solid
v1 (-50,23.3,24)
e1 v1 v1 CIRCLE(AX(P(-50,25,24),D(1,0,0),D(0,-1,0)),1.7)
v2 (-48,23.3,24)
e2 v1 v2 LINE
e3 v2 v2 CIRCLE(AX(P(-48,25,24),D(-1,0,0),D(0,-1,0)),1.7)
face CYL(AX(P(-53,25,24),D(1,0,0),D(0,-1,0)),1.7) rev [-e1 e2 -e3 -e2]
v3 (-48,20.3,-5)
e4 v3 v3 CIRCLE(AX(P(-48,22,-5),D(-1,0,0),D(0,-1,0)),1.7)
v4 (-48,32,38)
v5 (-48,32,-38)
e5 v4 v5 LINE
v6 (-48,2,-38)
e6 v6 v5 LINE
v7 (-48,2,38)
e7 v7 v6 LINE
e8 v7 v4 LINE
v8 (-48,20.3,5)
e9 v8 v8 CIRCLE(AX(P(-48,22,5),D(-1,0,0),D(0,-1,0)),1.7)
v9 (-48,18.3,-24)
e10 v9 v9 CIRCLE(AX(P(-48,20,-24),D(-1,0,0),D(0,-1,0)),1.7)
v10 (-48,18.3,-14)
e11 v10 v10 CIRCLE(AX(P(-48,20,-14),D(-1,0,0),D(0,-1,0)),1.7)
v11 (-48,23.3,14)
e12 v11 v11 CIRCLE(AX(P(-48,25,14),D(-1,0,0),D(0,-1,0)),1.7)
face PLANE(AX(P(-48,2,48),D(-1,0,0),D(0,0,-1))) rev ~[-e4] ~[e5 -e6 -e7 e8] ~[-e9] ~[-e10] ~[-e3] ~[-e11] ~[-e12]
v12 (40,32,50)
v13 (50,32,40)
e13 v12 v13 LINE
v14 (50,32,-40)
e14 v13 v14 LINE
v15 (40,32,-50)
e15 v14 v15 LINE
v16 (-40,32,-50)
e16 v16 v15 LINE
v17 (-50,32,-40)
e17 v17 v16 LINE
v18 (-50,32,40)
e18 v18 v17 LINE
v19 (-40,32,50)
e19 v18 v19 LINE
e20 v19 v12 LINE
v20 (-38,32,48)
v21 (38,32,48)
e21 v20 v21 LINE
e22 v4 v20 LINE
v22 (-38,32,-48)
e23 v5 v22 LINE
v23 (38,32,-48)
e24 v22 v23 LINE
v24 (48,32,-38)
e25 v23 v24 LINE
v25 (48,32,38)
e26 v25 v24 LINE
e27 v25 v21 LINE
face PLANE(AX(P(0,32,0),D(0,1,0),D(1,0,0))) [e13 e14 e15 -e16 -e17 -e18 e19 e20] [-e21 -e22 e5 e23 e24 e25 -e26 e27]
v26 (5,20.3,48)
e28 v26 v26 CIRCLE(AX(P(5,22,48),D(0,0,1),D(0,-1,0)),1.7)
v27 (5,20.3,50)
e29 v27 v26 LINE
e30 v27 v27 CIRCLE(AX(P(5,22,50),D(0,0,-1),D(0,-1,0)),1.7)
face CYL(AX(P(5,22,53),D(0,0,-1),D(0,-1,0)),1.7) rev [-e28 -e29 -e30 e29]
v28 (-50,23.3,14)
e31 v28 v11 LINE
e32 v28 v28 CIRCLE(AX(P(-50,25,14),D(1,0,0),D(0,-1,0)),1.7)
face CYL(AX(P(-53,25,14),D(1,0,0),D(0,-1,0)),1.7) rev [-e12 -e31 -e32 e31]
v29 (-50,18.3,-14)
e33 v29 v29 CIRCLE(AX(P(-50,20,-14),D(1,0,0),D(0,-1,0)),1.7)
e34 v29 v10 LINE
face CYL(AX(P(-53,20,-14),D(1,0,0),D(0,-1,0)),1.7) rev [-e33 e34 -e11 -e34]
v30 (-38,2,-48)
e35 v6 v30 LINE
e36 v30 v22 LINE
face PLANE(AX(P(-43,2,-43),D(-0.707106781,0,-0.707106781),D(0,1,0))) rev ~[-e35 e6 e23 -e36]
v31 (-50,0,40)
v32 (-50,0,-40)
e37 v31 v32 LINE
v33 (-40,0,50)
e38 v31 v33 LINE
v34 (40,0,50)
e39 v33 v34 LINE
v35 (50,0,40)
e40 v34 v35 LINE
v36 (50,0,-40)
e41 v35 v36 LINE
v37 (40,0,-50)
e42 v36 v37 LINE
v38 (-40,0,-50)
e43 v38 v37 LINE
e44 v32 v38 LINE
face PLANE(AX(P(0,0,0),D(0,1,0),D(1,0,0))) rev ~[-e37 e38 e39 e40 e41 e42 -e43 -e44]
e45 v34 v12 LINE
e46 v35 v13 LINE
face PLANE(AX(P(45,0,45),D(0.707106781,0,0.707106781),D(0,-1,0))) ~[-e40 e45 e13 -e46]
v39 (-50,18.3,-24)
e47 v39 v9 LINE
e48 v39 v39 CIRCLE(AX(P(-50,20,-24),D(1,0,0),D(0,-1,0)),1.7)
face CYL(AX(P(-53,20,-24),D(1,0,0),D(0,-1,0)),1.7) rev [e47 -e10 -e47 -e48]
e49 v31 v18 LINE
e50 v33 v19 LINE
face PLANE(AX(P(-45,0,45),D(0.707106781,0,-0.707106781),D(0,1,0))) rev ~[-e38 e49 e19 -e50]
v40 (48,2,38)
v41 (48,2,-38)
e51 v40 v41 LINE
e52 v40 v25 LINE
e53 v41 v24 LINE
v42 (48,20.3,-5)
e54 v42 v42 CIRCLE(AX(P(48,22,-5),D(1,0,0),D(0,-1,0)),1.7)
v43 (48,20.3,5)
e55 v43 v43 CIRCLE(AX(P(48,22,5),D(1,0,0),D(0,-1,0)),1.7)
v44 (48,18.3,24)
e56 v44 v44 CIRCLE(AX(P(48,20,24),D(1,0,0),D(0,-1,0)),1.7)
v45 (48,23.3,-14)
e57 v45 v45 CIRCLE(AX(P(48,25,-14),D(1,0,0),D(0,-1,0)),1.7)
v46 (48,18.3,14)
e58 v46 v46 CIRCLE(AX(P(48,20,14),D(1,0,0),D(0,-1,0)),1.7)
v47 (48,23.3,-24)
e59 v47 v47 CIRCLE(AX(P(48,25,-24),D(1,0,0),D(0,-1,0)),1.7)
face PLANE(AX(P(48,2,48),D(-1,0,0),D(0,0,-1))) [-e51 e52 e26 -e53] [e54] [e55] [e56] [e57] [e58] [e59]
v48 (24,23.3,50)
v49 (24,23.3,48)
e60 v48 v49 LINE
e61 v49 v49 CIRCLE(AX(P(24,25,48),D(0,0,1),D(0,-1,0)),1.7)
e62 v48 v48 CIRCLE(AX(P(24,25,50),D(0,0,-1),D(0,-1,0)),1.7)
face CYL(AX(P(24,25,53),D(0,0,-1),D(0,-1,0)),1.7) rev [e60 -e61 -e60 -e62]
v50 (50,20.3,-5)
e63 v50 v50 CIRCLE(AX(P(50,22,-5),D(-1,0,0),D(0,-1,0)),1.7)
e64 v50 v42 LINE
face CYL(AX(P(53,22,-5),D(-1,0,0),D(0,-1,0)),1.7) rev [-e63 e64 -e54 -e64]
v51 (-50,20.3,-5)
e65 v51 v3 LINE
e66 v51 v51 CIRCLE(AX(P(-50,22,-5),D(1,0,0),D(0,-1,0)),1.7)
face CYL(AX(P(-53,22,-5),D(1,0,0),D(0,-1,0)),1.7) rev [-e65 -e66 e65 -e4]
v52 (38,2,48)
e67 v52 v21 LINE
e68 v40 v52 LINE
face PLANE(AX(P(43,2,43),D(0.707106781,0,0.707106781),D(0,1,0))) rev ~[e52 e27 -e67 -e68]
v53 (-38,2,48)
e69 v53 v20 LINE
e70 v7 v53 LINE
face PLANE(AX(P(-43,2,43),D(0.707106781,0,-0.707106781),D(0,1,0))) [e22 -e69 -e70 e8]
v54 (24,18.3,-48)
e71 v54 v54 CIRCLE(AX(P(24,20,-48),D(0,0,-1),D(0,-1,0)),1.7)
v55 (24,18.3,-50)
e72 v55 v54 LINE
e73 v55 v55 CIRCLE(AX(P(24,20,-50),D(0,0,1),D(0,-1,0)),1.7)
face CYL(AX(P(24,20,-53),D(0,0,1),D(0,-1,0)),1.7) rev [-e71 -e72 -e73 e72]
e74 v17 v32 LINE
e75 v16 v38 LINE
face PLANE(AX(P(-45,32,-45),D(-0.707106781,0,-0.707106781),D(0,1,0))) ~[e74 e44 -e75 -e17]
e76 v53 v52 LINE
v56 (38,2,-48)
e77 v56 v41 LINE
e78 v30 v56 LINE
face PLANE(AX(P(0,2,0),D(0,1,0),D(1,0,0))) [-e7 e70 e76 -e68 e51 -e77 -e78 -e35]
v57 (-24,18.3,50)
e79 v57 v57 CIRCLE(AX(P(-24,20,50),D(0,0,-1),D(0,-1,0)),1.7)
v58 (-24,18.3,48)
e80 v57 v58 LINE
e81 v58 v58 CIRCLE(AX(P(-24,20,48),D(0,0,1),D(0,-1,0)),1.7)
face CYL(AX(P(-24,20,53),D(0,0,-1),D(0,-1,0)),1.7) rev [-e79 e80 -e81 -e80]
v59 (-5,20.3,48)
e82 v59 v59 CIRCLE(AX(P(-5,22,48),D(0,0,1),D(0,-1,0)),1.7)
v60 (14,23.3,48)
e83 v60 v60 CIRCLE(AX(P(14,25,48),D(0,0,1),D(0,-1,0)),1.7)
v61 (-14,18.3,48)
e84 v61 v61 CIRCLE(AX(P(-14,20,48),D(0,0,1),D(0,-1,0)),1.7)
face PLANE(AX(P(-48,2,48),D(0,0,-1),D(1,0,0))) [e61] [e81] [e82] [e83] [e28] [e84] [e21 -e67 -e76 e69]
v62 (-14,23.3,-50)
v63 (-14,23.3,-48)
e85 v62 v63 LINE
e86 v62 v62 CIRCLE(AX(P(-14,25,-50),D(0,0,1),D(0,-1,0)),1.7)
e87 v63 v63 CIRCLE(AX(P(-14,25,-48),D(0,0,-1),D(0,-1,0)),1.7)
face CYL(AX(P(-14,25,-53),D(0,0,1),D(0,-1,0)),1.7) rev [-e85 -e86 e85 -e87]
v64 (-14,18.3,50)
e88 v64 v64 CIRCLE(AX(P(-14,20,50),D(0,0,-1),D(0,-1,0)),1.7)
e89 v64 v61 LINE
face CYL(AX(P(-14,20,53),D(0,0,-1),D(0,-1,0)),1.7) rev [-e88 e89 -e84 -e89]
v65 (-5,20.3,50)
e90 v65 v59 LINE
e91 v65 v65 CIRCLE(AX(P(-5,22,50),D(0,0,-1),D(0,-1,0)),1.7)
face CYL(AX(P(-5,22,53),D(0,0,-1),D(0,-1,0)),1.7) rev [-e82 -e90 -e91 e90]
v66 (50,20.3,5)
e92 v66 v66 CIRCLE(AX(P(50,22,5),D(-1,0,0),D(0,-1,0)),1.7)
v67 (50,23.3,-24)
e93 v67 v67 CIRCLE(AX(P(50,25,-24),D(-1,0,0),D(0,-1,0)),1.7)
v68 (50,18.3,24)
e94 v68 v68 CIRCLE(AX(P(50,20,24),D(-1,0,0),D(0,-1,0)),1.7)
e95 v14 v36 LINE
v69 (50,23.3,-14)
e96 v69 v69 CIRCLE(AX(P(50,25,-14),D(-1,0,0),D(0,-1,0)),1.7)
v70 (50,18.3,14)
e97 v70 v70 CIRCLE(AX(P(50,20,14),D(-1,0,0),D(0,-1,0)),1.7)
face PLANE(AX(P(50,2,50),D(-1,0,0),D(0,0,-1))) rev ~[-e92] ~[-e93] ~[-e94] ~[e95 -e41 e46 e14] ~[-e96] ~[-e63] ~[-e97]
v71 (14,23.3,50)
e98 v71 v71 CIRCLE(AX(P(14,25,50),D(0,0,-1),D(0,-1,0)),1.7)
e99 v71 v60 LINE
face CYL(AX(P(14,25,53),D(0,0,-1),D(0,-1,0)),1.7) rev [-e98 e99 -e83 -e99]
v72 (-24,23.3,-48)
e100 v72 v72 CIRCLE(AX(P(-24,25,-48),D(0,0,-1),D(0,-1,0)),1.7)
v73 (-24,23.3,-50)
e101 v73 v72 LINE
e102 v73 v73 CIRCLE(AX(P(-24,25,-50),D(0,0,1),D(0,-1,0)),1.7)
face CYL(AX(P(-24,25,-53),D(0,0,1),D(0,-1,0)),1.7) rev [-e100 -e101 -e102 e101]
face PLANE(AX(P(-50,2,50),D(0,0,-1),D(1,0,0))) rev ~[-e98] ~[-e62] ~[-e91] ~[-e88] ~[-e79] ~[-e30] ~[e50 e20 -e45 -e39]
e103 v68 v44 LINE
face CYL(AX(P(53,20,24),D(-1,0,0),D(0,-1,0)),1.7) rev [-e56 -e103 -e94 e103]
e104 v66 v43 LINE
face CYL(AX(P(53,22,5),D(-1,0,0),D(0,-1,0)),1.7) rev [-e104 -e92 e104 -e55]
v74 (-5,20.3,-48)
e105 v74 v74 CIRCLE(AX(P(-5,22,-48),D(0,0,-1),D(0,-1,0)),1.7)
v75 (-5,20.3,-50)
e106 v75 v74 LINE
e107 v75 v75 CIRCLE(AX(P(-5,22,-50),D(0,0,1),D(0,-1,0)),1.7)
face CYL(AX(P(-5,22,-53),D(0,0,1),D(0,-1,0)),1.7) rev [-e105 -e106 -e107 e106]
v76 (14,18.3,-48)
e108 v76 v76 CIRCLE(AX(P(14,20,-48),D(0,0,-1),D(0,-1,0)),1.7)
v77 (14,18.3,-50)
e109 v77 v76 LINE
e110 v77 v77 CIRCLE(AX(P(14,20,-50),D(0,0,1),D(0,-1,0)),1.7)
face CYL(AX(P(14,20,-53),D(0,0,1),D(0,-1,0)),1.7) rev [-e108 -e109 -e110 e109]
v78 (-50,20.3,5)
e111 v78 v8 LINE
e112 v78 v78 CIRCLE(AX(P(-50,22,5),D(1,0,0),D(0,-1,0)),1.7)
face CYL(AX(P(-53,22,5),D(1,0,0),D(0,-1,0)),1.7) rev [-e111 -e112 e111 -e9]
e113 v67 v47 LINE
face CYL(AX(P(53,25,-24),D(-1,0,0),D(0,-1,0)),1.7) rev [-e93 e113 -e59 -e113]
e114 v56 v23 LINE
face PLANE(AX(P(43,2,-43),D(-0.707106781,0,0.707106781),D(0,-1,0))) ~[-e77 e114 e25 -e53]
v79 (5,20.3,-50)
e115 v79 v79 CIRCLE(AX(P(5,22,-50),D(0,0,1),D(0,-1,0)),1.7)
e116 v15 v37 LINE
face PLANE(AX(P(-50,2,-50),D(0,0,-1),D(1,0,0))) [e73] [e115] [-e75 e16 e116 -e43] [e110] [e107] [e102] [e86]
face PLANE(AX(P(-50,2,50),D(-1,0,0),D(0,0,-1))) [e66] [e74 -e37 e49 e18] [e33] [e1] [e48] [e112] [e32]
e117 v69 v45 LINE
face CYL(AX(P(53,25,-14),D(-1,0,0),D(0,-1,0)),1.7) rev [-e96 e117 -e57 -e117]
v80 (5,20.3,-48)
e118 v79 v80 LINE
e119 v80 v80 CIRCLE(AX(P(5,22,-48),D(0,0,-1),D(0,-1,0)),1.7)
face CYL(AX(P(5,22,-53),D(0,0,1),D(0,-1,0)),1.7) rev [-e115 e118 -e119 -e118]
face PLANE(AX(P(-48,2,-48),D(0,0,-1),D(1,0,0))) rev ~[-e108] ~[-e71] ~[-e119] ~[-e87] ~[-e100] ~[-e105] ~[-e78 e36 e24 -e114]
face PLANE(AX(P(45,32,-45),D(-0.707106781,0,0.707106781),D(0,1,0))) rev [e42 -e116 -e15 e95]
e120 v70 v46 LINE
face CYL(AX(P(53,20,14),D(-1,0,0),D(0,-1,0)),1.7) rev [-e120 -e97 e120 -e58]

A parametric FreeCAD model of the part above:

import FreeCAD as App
import Part
import Sketcher

V = App.Vector
Q = App.Units.Quantity


def edges_at(feature, points):
    """Names of the edges that pass closest to the given points."""
    edges = feature.Shape.Edges
    near = lambda p: min(range(len(edges)), key=lambda i: edges[i].distToShape(Part.Vertex(*p))[0])
    return sorted({f"Edge{near(p) + 1}" for p in points})

doc = App.newDocument("Part")
params = doc.addObject("Spreadsheet::Sheet", "Params")
for row, (alias, value) in enumerate([
    ("sketch1_width", "100 mm"),
    ("pad1_length", "2 mm"),
    ("sketch2_width", "100 mm"),
    ("sketch2_width2", "96 mm"),
    ("pad2_length", "30 mm"),
    ("chamfer_size", "10 mm"),
    ("sketch3_height", "5 mm"),
    ("sketch3_width", "1.7 mm"),
    ("groove_angle", "360 deg"),
    ("linearpattern_pitch", "10 mm"),
    ("linearpattern2_pitch", "19.235384 mm"),
    ("linearpattern3_pitch", "29.154759 mm"),
    ("linearpattern4_pitch", "38.327536 mm"),
    ("linearpattern5_pitch", "48.259714 mm"),
    ("sketch4_width", "5 mm"),
    ("sketch4_height", "1.7 mm"),
    ("groove2_angle", "360 deg"),
    ("sketch5_height", "5 mm"),
    ("sketch5_width", "1.7 mm"),
    ("groove3_angle", "360 deg"),
    ("sketch6_width", "5 mm"),
    ("sketch6_height", "1.7 mm"),
    ("groove4_angle", "360 deg"),
    ("sketch7_width", "5 mm"),
    ("sketch7_height", "1.7 mm"),
    ("groove5_angle", "360 deg"),
    ("sketch8_height", "5 mm"),
    ("sketch8_width", "1.7 mm"),
    ("groove6_angle", "360 deg"),
    ("sketch9_width", "5 mm"),
    ("sketch9_height", "1.7 mm"),
    ("groove7_angle", "360 deg"),
    ("sketch10_width", "5 mm"),
    ("sketch10_height", "1.7 mm"),
    ("groove8_angle", "360 deg"),
    ("sketch11_height", "5 mm"),
    ("sketch11_width", "1.7 mm"),
    ("groove9_angle", "360 deg"),
    ("sketch12_width", "5 mm"),
    ("sketch12_height", "1.7 mm"),
    ("groove10_angle", "360 deg"),
    ("sketch13_width", "5 mm"),
    ("sketch13_height", "1.7 mm"),
    ("groove11_angle", "360 deg"),
    ("sketch14_height", "5 mm"),
    ("sketch14_width", "1.7 mm"),
    ("groove12_angle", "360 deg"),
    ("sketch15_width", "5 mm"),
    ("sketch15_height", "1.7 mm"),
    ("groove13_angle", "360 deg"),
    ("sketch16_width", "5 mm"),
    ("sketch16_height", "1.7 mm"),
    ("groove14_angle", "360 deg"),
    ("sketch17_height", "5 mm"),
    ("sketch17_width", "1.7 mm"),
    ("groove15_angle", "360 deg"),
    ("sketch18_width", "5 mm"),
    ("sketch18_height", "1.7 mm"),
    ("groove16_angle", "360 deg"),
], start=1):
    params.set(f"A{row}", alias)
    params.set(f"B{row}", "=" + value)
    params.setAlias(f"B{row}", alias)

body = doc.addObject("PartDesign::Body", "Body")

sketch1 = body.newObject("Sketcher::SketchObject", "Sketch")
sketch1.AttachmentSupport = (doc.getObject("XZ_Plane"), [""])
sketch1.MapMode = "FlatFace"
sketch1.addGeometry(Part.LineSegment(V(-50, -50, 0), V(-50, 50, 0)), False)
sketch1.addGeometry(Part.LineSegment(V(-50, 50, 0), V(50, 50, 0)), False)
sketch1.addGeometry(Part.LineSegment(V(50, 50, 0), V(50, -50, 0)), False)
sketch1.addGeometry(Part.LineSegment(V(50, -50, 0), V(-50, -50, 0)), False)
sketch1.addConstraint(Sketcher.Constraint("Coincident", 0, 2, 1, 1))
sketch1.addConstraint(Sketcher.Constraint("Coincident", 1, 2, 2, 1))
sketch1.addConstraint(Sketcher.Constraint("Coincident", 2, 2, 3, 1))
sketch1.addConstraint(Sketcher.Constraint("Coincident", 3, 2, 0, 1))
sketch1.addConstraint(Sketcher.Constraint("Vertical", 0))
sketch1.addConstraint(Sketcher.Constraint("Horizontal", 1))
sketch1.addConstraint(Sketcher.Constraint("Vertical", 2))
sketch1.addConstraint(Sketcher.Constraint("Horizontal", 3))
sketch1.addConstraint(Sketcher.Constraint("Symmetric", 0, 2, 2, 2, -1, 1))
sketch1.addConstraint(Sketcher.Constraint("Equal", 3, 0))
sketch1.addConstraint(Sketcher.Constraint("DistanceX", 1, 1, 1, 2, Q("100 mm")))
sketch1.setExpression("Constraints[10]", "Params.sketch1_width")
pad1 = body.newObject("PartDesign::Pad", "Pad")
pad1.Profile = sketch1
pad1.setExpression("Length", "Params.pad1_length")
pad1.Reversed = True

sketch2 = body.newObject("Sketcher::SketchObject", "Sketch001")
sketch2.AttachmentSupport = (doc.getObject("XZ_Plane"), [""])
sketch2.MapMode = "FlatFace"
sketch2.AttachmentOffset = App.Placement(V(0, 0, -2), App.Rotation())
sketch2.addGeometry(Part.LineSegment(V(-50, -50, 0), V(-50, 50, 0)), False)
sketch2.addGeometry(Part.LineSegment(V(-50, 50, 0), V(50, 50, 0)), False)
sketch2.addGeometry(Part.LineSegment(V(50, 50, 0), V(50, -50, 0)), False)
sketch2.addGeometry(Part.LineSegment(V(50, -50, 0), V(-50, -50, 0)), False)
sketch2.addGeometry(Part.LineSegment(V(48, 48, 0), V(-48, 48, 0)), False)
sketch2.addGeometry(Part.LineSegment(V(-48, 48, 0), V(-48, -48, 0)), False)
sketch2.addGeometry(Part.LineSegment(V(-48, -48, 0), V(48, -48, 0)), False)
sketch2.addGeometry(Part.LineSegment(V(48, -48, 0), V(48, 48, 0)), False)
sketch2.addConstraint(Sketcher.Constraint("Coincident", 0, 2, 1, 1))
sketch2.addConstraint(Sketcher.Constraint("Coincident", 1, 2, 2, 1))
sketch2.addConstraint(Sketcher.Constraint("Coincident", 2, 2, 3, 1))
sketch2.addConstraint(Sketcher.Constraint("Coincident", 3, 2, 0, 1))
sketch2.addConstraint(Sketcher.Constraint("Coincident", 4, 2, 5, 1))
sketch2.addConstraint(Sketcher.Constraint("Coincident", 5, 2, 6, 1))
sketch2.addConstraint(Sketcher.Constraint("Coincident", 6, 2, 7, 1))
sketch2.addConstraint(Sketcher.Constraint("Coincident", 7, 2, 4, 1))
sketch2.addConstraint(Sketcher.Constraint("Vertical", 0))
sketch2.addConstraint(Sketcher.Constraint("Horizontal", 1))
sketch2.addConstraint(Sketcher.Constraint("Vertical", 2))
sketch2.addConstraint(Sketcher.Constraint("Horizontal", 3))
sketch2.addConstraint(Sketcher.Constraint("Horizontal", 4))
sketch2.addConstraint(Sketcher.Constraint("Vertical", 5))
sketch2.addConstraint(Sketcher.Constraint("Horizontal", 6))
sketch2.addConstraint(Sketcher.Constraint("Vertical", 7))
sketch2.addConstraint(Sketcher.Constraint("Symmetric", 0, 2, 2, 2, -1, 1))
sketch2.addConstraint(Sketcher.Constraint("Symmetric", 4, 2, 6, 2, -1, 1))
sketch2.addConstraint(Sketcher.Constraint("Equal", 3, 0))
sketch2.addConstraint(Sketcher.Constraint("Equal", 6, 5))
sketch2.addConstraint(Sketcher.Constraint("DistanceX", 1, 1, 1, 2, Q("100 mm")))
sketch2.addConstraint(Sketcher.Constraint("DistanceX", 4, 2, 4, 1, Q("96 mm")))
sketch2.setExpression("Constraints[20]", "Params.sketch2_width")
sketch2.setExpression("Constraints[21]", "Params.sketch2_width2")
pad2 = body.newObject("PartDesign::Pad", "Pad001")
pad2.Profile = sketch2
pad2.setExpression("Length", "Params.pad2_length")
pad2.Reversed = True
doc.recompute()

chamfer = body.newObject("PartDesign::Chamfer", "Chamfer")
chamfer.Base = (pad2, edges_at(pad2, [
    (-48, 17, -48),
    (-48, 17, 48),
    (48, 17, 48),
    (48, 17, -48),
    (-50, 16, -50),
    (50, 16, -50),
    (50, 16, 50),
    (-50, 16, 50),
]))
chamfer.setExpression("Size", "Params.chamfer_size")

sketch3 = body.newObject("Sketcher::SketchObject", "Sketch002")
sketch3.AttachmentSupport = (doc.getObject("YZ_Plane"), [""])
sketch3.MapMode = "FlatFace"
sketch3.AttachmentOffset = App.Placement(V(0, 0, -24), App.Rotation())
sketch3.addGeometry(Part.LineSegment(V(25, -54.021463, 0), V(25, -48, 0)), False)
sketch3.addGeometry(Part.LineSegment(V(25, -48, 0), V(23.3, -48, 0)), False)
sketch3.addGeometry(Part.LineSegment(V(23.3, -48, 0), V(23.3, -53, 0)), False)
sketch3.addGeometry(Part.LineSegment(V(23.3, -53, 0), V(25, -54.021463, 0)), False)
sketch3.addGeometry(Part.LineSegment(V(25, -48, 0), V(25, -54.021463, 0)), True)
sketch3.addConstraint(Sketcher.Constraint("Coincident", 0, 2, 1, 1))
sketch3.addConstraint(Sketcher.Constraint("Coincident", 1, 2, 2, 1))
sketch3.addConstraint(Sketcher.Constraint("Coincident", 2, 2, 3, 1))
sketch3.addConstraint(Sketcher.Constraint("Coincident", 3, 2, 0, 1))
sketch3.addConstraint(Sketcher.Constraint("Vertical", 0))
sketch3.addConstraint(Sketcher.Constraint("Horizontal", 1))
sketch3.addConstraint(Sketcher.Constraint("Vertical", 2))
sketch3.addConstraint(Sketcher.Constraint("Vertical", 4))
sketch3.addConstraint(Sketcher.Constraint("Coincident", 4, 1, 0, 2))
sketch3.addConstraint(Sketcher.Constraint("Equal", 0, 4))
sketch3.addConstraint(Sketcher.Constraint("DistanceY", 2, 2, 2, 1, Q("5 mm")))
sketch3.addConstraint(Sketcher.Constraint("Angle", 3, Q("-31 deg")))
sketch3.addConstraint(Sketcher.Constraint("DistanceX", 1, 2, 1, 1, Q("1.7 mm")))
sketch3.addConstraint(Sketcher.Constraint("DistanceX", -1, 1, 0, 2, Q("25 mm")))
sketch3.addConstraint(Sketcher.Constraint("DistanceY", 0, 2, -1, 1, Q("48 mm")))
sketch3.setExpression("Constraints[10]", "Params.sketch3_height")
sketch3.setExpression("Constraints[12]", "Params.sketch3_width")
groove = body.newObject("PartDesign::Groove", "Groove")
groove.Profile = sketch3
groove.ReferenceAxis = (sketch3, ["Axis0"])
groove.setExpression("Angle", "Params.groove_angle")
doc.recompute()

linearpattern = body.newObject("PartDesign::LinearPattern", "LinearPattern")
linearpattern.Originals = [groove]
linearpattern.Direction = (doc.getObject("X_Axis"), [""])
linearpattern.Mode = "offset"
linearpattern.setExpression("Offset", "Params.linearpattern_pitch")
linearpattern.Occurrences = 2
body.Tip = linearpattern
doc.recompute()

datumline = body.newObject("PartDesign::Line", "DatumLine")
datumline.Placement = App.Placement(V(0, 0, 0), App.Rotation(V(0, 0, 1), V(0.987762965, -0.155962573, 0)))
linearpattern2 = body.newObject("PartDesign::LinearPattern", "LinearPattern001")
linearpattern2.Originals = [groove]
linearpattern2.Direction = (datumline, [""])
linearpattern2.Mode = "offset"
linearpattern2.setExpression("Offset", "Params.linearpattern2_pitch")
linearpattern2.Occurrences = 2
body.Tip = linearpattern2
doc.recompute()

datumline2 = body.newObject("PartDesign::Line", "DatumLine001")
datumline2.Placement = App.Placement(V(0, 0, 0), App.Rotation(V(0, 0, 1), V(0.994691794, -0.102899151, 0)))
linearpattern3 = body.newObject("PartDesign::LinearPattern", "LinearPattern002")
linearpattern3.Originals = [groove]
linearpattern3.Direction = (datumline2, [""])
linearpattern3.Mode = "offset"
linearpattern3.setExpression("Offset", "Params.linearpattern3_pitch")
linearpattern3.Occurrences = 2
body.Tip = linearpattern3
doc.recompute()

datumline3 = body.newObject("PartDesign::Line", "DatumLine002")
datumline3.Placement = App.Placement(V(0, 0, 0), App.Rotation(V(0, 0, 1), V(0.991454295, -0.130454513, 0)))
linearpattern4 = body.newObject("PartDesign::LinearPattern", "LinearPattern003")
linearpattern4.Originals = [groove]
linearpattern4.Direction = (datumline3, [""])
linearpattern4.Mode = "offset"
linearpattern4.setExpression("Offset", "Params.linearpattern4_pitch")
linearpattern4.Occurrences = 2
body.Tip = linearpattern4
doc.recompute()

datumline4 = body.newObject("PartDesign::Line", "DatumLine003")
datumline4.Placement = App.Placement(V(0, 0, 0), App.Rotation(V(0, 0, 1), V(0.994618409, -0.103606084, 0)))
linearpattern5 = body.newObject("PartDesign::LinearPattern", "LinearPattern004")
linearpattern5.Originals = [groove]
linearpattern5.Direction = (datumline4, [""])
linearpattern5.Mode = "offset"
linearpattern5.setExpression("Offset", "Params.linearpattern5_pitch")
linearpattern5.Occurrences = 2
body.Tip = linearpattern5
doc.recompute()

polarpattern = body.newObject("PartDesign::PolarPattern", "PolarPattern")
polarpattern.Originals = [groove]
polarpattern.Axis = (doc.getObject("Y_Axis"), [""])
polarpattern.Angle = 360
polarpattern.Occurrences = 4
body.Tip = polarpattern

sketch4 = body.newObject("Sketcher::SketchObject", "Sketch003")
sketch4.AttachmentSupport = (doc.getObject("XY_Plane"), [""])
sketch4.MapMode = "FlatFace"
sketch4.AttachmentOffset = App.Placement(V(0, 0, -14), App.Rotation())
sketch4.addGeometry(Part.LineSegment(V(54.021463, 25, 0), V(48, 25, 0)), False)
sketch4.addGeometry(Part.LineSegment(V(48, 25, 0), V(48, 23.3, 0)), False)
sketch4.addGeometry(Part.LineSegment(V(48, 23.3, 0), V(53, 23.3, 0)), False)
sketch4.addGeometry(Part.LineSegment(V(53, 23.3, 0), V(54.021463, 25, 0)), False)
sketch4.addGeometry(Part.LineSegment(V(48, 25, 0), V(54.021463, 25, 0)), True)
sketch4.addConstraint(Sketcher.Constraint("Coincident", 0, 2, 1, 1))
sketch4.addConstraint(Sketcher.Constraint("Coincident", 1, 2, 2, 1))
sketch4.addConstraint(Sketcher.Constraint("Coincident", 2, 2, 3, 1))
sketch4.addConstraint(Sketcher.Constraint("Coincident", 3, 2, 0, 1))
sketch4.addConstraint(Sketcher.Constraint("Horizontal", 0))
sketch4.addConstraint(Sketcher.Constraint("Vertical", 1))
sketch4.addConstraint(Sketcher.Constraint("Horizontal", 2))
sketch4.addConstraint(Sketcher.Constraint("Horizontal", 4))
sketch4.addConstraint(Sketcher.Constraint("Coincident", 4, 1, 0, 2))
sketch4.addConstraint(Sketcher.Constraint("Equal", 0, 4))
sketch4.addConstraint(Sketcher.Constraint("DistanceX", 2, 1, 2, 2, Q("5 mm")))
sketch4.addConstraint(Sketcher.Constraint("Angle", 3, Q("59 deg")))
sketch4.addConstraint(Sketcher.Constraint("DistanceY", 1, 2, 1, 1, Q("1.7 mm")))
sketch4.addConstraint(Sketcher.Constraint("DistanceX", -1, 1, 0, 2, Q("48 mm")))
sketch4.addConstraint(Sketcher.Constraint("DistanceY", -1, 1, 0, 2, Q("25 mm")))
sketch4.setExpression("Constraints[10]", "Params.sketch4_width")
sketch4.setExpression("Constraints[12]", "Params.sketch4_height")
groove2 = body.newObject("PartDesign::Groove", "Groove001")
groove2.Profile = sketch4
groove2.ReferenceAxis = (sketch4, ["Axis0"])
groove2.setExpression("Angle", "Params.groove2_angle")

sketch5 = body.newObject("Sketcher::SketchObject", "Sketch004")
sketch5.AttachmentSupport = (doc.getObject("YZ_Plane"), [""])
sketch5.MapMode = "FlatFace"
sketch5.AttachmentOffset = App.Placement(V(0, 0, 14), App.Rotation())
sketch5.addGeometry(Part.LineSegment(V(25, 54.021463, 0), V(25, 48, 0)), False)
sketch5.addGeometry(Part.LineSegment(V(25, 48, 0), V(23.3, 48, 0)), False)
sketch5.addGeometry(Part.LineSegment(V(23.3, 48, 0), V(23.3, 53, 0)), False)
sketch5.addGeometry(Part.LineSegment(V(23.3, 53, 0), V(25, 54.021463, 0)), False)
sketch5.addGeometry(Part.LineSegment(V(25, 48, 0), V(25, 54.021463, 0)), True)
sketch5.addConstraint(Sketcher.Constraint("Coincident", 0, 2, 1, 1))
sketch5.addConstraint(Sketcher.Constraint("Coincident", 1, 2, 2, 1))
sketch5.addConstraint(Sketcher.Constraint("Coincident", 2, 2, 3, 1))
sketch5.addConstraint(Sketcher.Constraint("Coincident", 3, 2, 0, 1))
sketch5.addConstraint(Sketcher.Constraint("Vertical", 0))
sketch5.addConstraint(Sketcher.Constraint("Horizontal", 1))
sketch5.addConstraint(Sketcher.Constraint("Vertical", 2))
sketch5.addConstraint(Sketcher.Constraint("Vertical", 4))
sketch5.addConstraint(Sketcher.Constraint("Coincident", 4, 1, 0, 2))
sketch5.addConstraint(Sketcher.Constraint("Equal", 0, 4))
sketch5.addConstraint(Sketcher.Constraint("DistanceY", 2, 1, 2, 2, Q("5 mm")))
sketch5.addConstraint(Sketcher.Constraint("Angle", 3, Q("31 deg")))
sketch5.addConstraint(Sketcher.Constraint("DistanceX", 1, 2, 1, 1, Q("1.7 mm")))
sketch5.addConstraint(Sketcher.Constraint("DistanceX", -1, 1, 0, 2, Q("25 mm")))
sketch5.addConstraint(Sketcher.Constraint("DistanceY", -1, 1, 0, 2, Q("48 mm")))
sketch5.setExpression("Constraints[10]", "Params.sketch5_height")
sketch5.setExpression("Constraints[12]", "Params.sketch5_width")
groove3 = body.newObject("PartDesign::Groove", "Groove002")
groove3.Profile = sketch5
groove3.ReferenceAxis = (sketch5, ["Axis0"])
groove3.setExpression("Angle", "Params.groove3_angle")

sketch6 = body.newObject("Sketcher::SketchObject", "Sketch005")
sketch6.AttachmentSupport = (doc.getObject("XY_Plane"), [""])
sketch6.MapMode = "FlatFace"
sketch6.AttachmentOffset = App.Placement(V(0, 0, 14), App.Rotation())
sketch6.addGeometry(Part.LineSegment(V(-54.021463, 25, 0), V(-48, 25, 0)), False)
sketch6.addGeometry(Part.LineSegment(V(-48, 25, 0), V(-48, 23.3, 0)), False)
sketch6.addGeometry(Part.LineSegment(V(-48, 23.3, 0), V(-53, 23.3, 0)), False)
sketch6.addGeometry(Part.LineSegment(V(-53, 23.3, 0), V(-54.021463, 25, 0)), False)
sketch6.addGeometry(Part.LineSegment(V(-48, 25, 0), V(-54.021463, 25, 0)), True)
sketch6.addConstraint(Sketcher.Constraint("Coincident", 0, 2, 1, 1))
sketch6.addConstraint(Sketcher.Constraint("Coincident", 1, 2, 2, 1))
sketch6.addConstraint(Sketcher.Constraint("Coincident", 2, 2, 3, 1))
sketch6.addConstraint(Sketcher.Constraint("Coincident", 3, 2, 0, 1))
sketch6.addConstraint(Sketcher.Constraint("Horizontal", 0))
sketch6.addConstraint(Sketcher.Constraint("Vertical", 1))
sketch6.addConstraint(Sketcher.Constraint("Horizontal", 2))
sketch6.addConstraint(Sketcher.Constraint("Horizontal", 4))
sketch6.addConstraint(Sketcher.Constraint("Coincident", 4, 1, 0, 2))
sketch6.addConstraint(Sketcher.Constraint("Equal", 0, 4))
sketch6.addConstraint(Sketcher.Constraint("DistanceX", 2, 2, 2, 1, Q("5 mm")))
sketch6.addConstraint(Sketcher.Constraint("Angle", 3, Q("121 deg")))
sketch6.addConstraint(Sketcher.Constraint("DistanceY", 1, 2, 1, 1, Q("1.7 mm")))
sketch6.addConstraint(Sketcher.Constraint("DistanceX", 0, 2, -1, 1, Q("48 mm")))
sketch6.addConstraint(Sketcher.Constraint("DistanceY", -1, 1, 0, 2, Q("25 mm")))
sketch6.setExpression("Constraints[10]", "Params.sketch6_width")
sketch6.setExpression("Constraints[12]", "Params.sketch6_height")
groove4 = body.newObject("PartDesign::Groove", "Groove003")
groove4.Profile = sketch6
groove4.ReferenceAxis = (sketch6, ["Axis0"])
groove4.setExpression("Angle", "Params.groove4_angle")

sketch7 = body.newObject("Sketcher::SketchObject", "Sketch006")
sketch7.AttachmentSupport = (doc.getObject("XY_Plane"), [""])
sketch7.MapMode = "FlatFace"
sketch7.AttachmentOffset = App.Placement(V(0, 0, -5), App.Rotation())
sketch7.addGeometry(Part.LineSegment(V(54.021463, 22, 0), V(48, 22, 0)), False)
sketch7.addGeometry(Part.LineSegment(V(48, 22, 0), V(48, 20.3, 0)), False)
sketch7.addGeometry(Part.LineSegment(V(48, 20.3, 0), V(53, 20.3, 0)), False)
sketch7.addGeometry(Part.LineSegment(V(53, 20.3, 0), V(54.021463, 22, 0)), False)
sketch7.addGeometry(Part.LineSegment(V(48, 22, 0), V(54.021463, 22, 0)), True)
sketch7.addConstraint(Sketcher.Constraint("Coincident", 0, 2, 1, 1))
sketch7.addConstraint(Sketcher.Constraint("Coincident", 1, 2, 2, 1))
sketch7.addConstraint(Sketcher.Constraint("Coincident", 2, 2, 3, 1))
sketch7.addConstraint(Sketcher.Constraint("Coincident", 3, 2, 0, 1))
sketch7.addConstraint(Sketcher.Constraint("Horizontal", 0))
sketch7.addConstraint(Sketcher.Constraint("Vertical", 1))
sketch7.addConstraint(Sketcher.Constraint("Horizontal", 2))
sketch7.addConstraint(Sketcher.Constraint("Horizontal", 4))
sketch7.addConstraint(Sketcher.Constraint("Coincident", 4, 1, 0, 2))
sketch7.addConstraint(Sketcher.Constraint("Equal", 0, 4))
sketch7.addConstraint(Sketcher.Constraint("DistanceX", 2, 1, 2, 2, Q("5 mm")))
sketch7.addConstraint(Sketcher.Constraint("Angle", 3, Q("59 deg")))
sketch7.addConstraint(Sketcher.Constraint("DistanceY", 1, 2, 1, 1, Q("1.7 mm")))
sketch7.addConstraint(Sketcher.Constraint("DistanceX", -1, 1, 0, 2, Q("48 mm")))
sketch7.addConstraint(Sketcher.Constraint("DistanceY", -1, 1, 0, 2, Q("22 mm")))
sketch7.setExpression("Constraints[10]", "Params.sketch7_width")
sketch7.setExpression("Constraints[12]", "Params.sketch7_height")
groove5 = body.newObject("PartDesign::Groove", "Groove004")
groove5.Profile = sketch7
groove5.ReferenceAxis = (sketch7, ["Axis0"])
groove5.setExpression("Angle", "Params.groove5_angle")

sketch8 = body.newObject("Sketcher::SketchObject", "Sketch007")
sketch8.AttachmentSupport = (doc.getObject("YZ_Plane"), [""])
sketch8.MapMode = "FlatFace"
sketch8.AttachmentOffset = App.Placement(V(0, 0, 5), App.Rotation())
sketch8.addGeometry(Part.LineSegment(V(22, 54.021463, 0), V(22, 48, 0)), False)
sketch8.addGeometry(Part.LineSegment(V(22, 48, 0), V(20.3, 48, 0)), False)
sketch8.addGeometry(Part.LineSegment(V(20.3, 48, 0), V(20.3, 53, 0)), False)
sketch8.addGeometry(Part.LineSegment(V(20.3, 53, 0), V(22, 54.021463, 0)), False)
sketch8.addGeometry(Part.LineSegment(V(22, 48, 0), V(22, 54.021463, 0)), True)
sketch8.addConstraint(Sketcher.Constraint("Coincident", 0, 2, 1, 1))
sketch8.addConstraint(Sketcher.Constraint("Coincident", 1, 2, 2, 1))
sketch8.addConstraint(Sketcher.Constraint("Coincident", 2, 2, 3, 1))
sketch8.addConstraint(Sketcher.Constraint("Coincident", 3, 2, 0, 1))
sketch8.addConstraint(Sketcher.Constraint("Vertical", 0))
sketch8.addConstraint(Sketcher.Constraint("Horizontal", 1))
sketch8.addConstraint(Sketcher.Constraint("Vertical", 2))
sketch8.addConstraint(Sketcher.Constraint("Vertical", 4))
sketch8.addConstraint(Sketcher.Constraint("Coincident", 4, 1, 0, 2))
sketch8.addConstraint(Sketcher.Constraint("Equal", 0, 4))
sketch8.addConstraint(Sketcher.Constraint("DistanceY", 2, 1, 2, 2, Q("5 mm")))
sketch8.addConstraint(Sketcher.Constraint("Angle", 3, Q("31 deg")))
sketch8.addConstraint(Sketcher.Constraint("DistanceX", 1, 2, 1, 1, Q("1.7 mm")))
sketch8.addConstraint(Sketcher.Constraint("DistanceX", -1, 1, 0, 2, Q("22 mm")))
sketch8.addConstraint(Sketcher.Constraint("DistanceY", -1, 1, 0, 2, Q("48 mm")))
sketch8.setExpression("Constraints[10]", "Params.sketch8_height")
sketch8.setExpression("Constraints[12]", "Params.sketch8_width")
groove6 = body.newObject("PartDesign::Groove", "Groove005")
groove6.Profile = sketch8
groove6.ReferenceAxis = (sketch8, ["Axis0"])
groove6.setExpression("Angle", "Params.groove6_angle")

sketch9 = body.newObject("Sketcher::SketchObject", "Sketch008")
sketch9.AttachmentSupport = (doc.getObject("XY_Plane"), [""])
sketch9.MapMode = "FlatFace"
sketch9.AttachmentOffset = App.Placement(V(0, 0, 5), App.Rotation())
sketch9.addGeometry(Part.LineSegment(V(-54.021463, 22, 0), V(-48, 22, 0)), False)
sketch9.addGeometry(Part.LineSegment(V(-48, 22, 0), V(-48, 20.3, 0)), False)
sketch9.addGeometry(Part.LineSegment(V(-48, 20.3, 0), V(-53, 20.3, 0)), False)
sketch9.addGeometry(Part.LineSegment(V(-53, 20.3, 0), V(-54.021463, 22, 0)), False)
sketch9.addGeometry(Part.LineSegment(V(-48, 22, 0), V(-54.021463, 22, 0)), True)
sketch9.addConstraint(Sketcher.Constraint("Coincident", 0, 2, 1, 1))
sketch9.addConstraint(Sketcher.Constraint("Coincident", 1, 2, 2, 1))
sketch9.addConstraint(Sketcher.Constraint("Coincident", 2, 2, 3, 1))
sketch9.addConstraint(Sketcher.Constraint("Coincident", 3, 2, 0, 1))
sketch9.addConstraint(Sketcher.Constraint("Horizontal", 0))
sketch9.addConstraint(Sketcher.Constraint("Vertical", 1))
sketch9.addConstraint(Sketcher.Constraint("Horizontal", 2))
sketch9.addConstraint(Sketcher.Constraint("Horizontal", 4))
sketch9.addConstraint(Sketcher.Constraint("Coincident", 4, 1, 0, 2))
sketch9.addConstraint(Sketcher.Constraint("Equal", 0, 4))
sketch9.addConstraint(Sketcher.Constraint("DistanceX", 2, 2, 2, 1, Q("5 mm")))
sketch9.addConstraint(Sketcher.Constraint("Angle", 3, Q("121 deg")))
sketch9.addConstraint(Sketcher.Constraint("DistanceY", 1, 2, 1, 1, Q("1.7 mm")))
sketch9.addConstraint(Sketcher.Constraint("DistanceX", 0, 2, -1, 1, Q("48 mm")))
sketch9.addConstraint(Sketcher.Constraint("DistanceY", -1, 1, 0, 2, Q("22 mm")))
sketch9.setExpression("Constraints[10]", "Params.sketch9_width")
sketch9.setExpression("Constraints[12]", "Params.sketch9_height")
groove7 = body.newObject("PartDesign::Groove", "Groove006")
groove7.Profile = sketch9
groove7.ReferenceAxis = (sketch9, ["Axis0"])
groove7.setExpression("Angle", "Params.groove7_angle")

sketch10 = body.newObject("Sketcher::SketchObject", "Sketch009")
sketch10.AttachmentSupport = (doc.getObject("XY_Plane"), [""])
sketch10.MapMode = "FlatFace"
sketch10.AttachmentOffset = App.Placement(V(0, 0, 5), App.Rotation())
sketch10.addGeometry(Part.LineSegment(V(54.021463, 22, 0), V(48, 22, 0)), False)
sketch10.addGeometry(Part.LineSegment(V(48, 22, 0), V(48, 20.3, 0)), False)
sketch10.addGeometry(Part.LineSegment(V(48, 20.3, 0), V(53, 20.3, 0)), False)
sketch10.addGeometry(Part.LineSegment(V(53, 20.3, 0), V(54.021463, 22, 0)), False)
sketch10.addGeometry(Part.LineSegment(V(48, 22, 0), V(54.021463, 22, 0)), True)
sketch10.addConstraint(Sketcher.Constraint("Coincident", 0, 2, 1, 1))
sketch10.addConstraint(Sketcher.Constraint("Coincident", 1, 2, 2, 1))
sketch10.addConstraint(Sketcher.Constraint("Coincident", 2, 2, 3, 1))
sketch10.addConstraint(Sketcher.Constraint("Coincident", 3, 2, 0, 1))
sketch10.addConstraint(Sketcher.Constraint("Horizontal", 0))
sketch10.addConstraint(Sketcher.Constraint("Vertical", 1))
sketch10.addConstraint(Sketcher.Constraint("Horizontal", 2))
sketch10.addConstraint(Sketcher.Constraint("Horizontal", 4))
sketch10.addConstraint(Sketcher.Constraint("Coincident", 4, 1, 0, 2))
sketch10.addConstraint(Sketcher.Constraint("Equal", 0, 4))
sketch10.addConstraint(Sketcher.Constraint("DistanceX", 2, 1, 2, 2, Q("5 mm")))
sketch10.addConstraint(Sketcher.Constraint("Angle", 3, Q("59 deg")))
sketch10.addConstraint(Sketcher.Constraint("DistanceY", 1, 2, 1, 1, Q("1.7 mm")))
sketch10.addConstraint(Sketcher.Constraint("DistanceX", -1, 1, 0, 2, Q("48 mm")))
sketch10.addConstraint(Sketcher.Constraint("DistanceY", -1, 1, 0, 2, Q("22 mm")))
sketch10.setExpression("Constraints[10]", "Params.sketch10_width")
sketch10.setExpression("Constraints[12]", "Params.sketch10_height")
groove8 = body.newObject("PartDesign::Groove", "Groove007")
groove8.Profile = sketch10
groove8.ReferenceAxis = (sketch10, ["Axis0"])
groove8.setExpression("Angle", "Params.groove8_angle")

sketch11 = body.newObject("Sketcher::SketchObject", "Sketch010")
sketch11.AttachmentSupport = (doc.getObject("YZ_Plane"), [""])
sketch11.MapMode = "FlatFace"
sketch11.AttachmentOffset = App.Placement(V(0, 0, -5), App.Rotation())
sketch11.addGeometry(Part.LineSegment(V(22, 54.021463, 0), V(22, 48, 0)), False)
sketch11.addGeometry(Part.LineSegment(V(22, 48, 0), V(20.3, 48, 0)), False)
sketch11.addGeometry(Part.LineSegment(V(20.3, 48, 0), V(20.3, 53, 0)), False)
sketch11.addGeometry(Part.LineSegment(V(20.3, 53, 0), V(22, 54.021463, 0)), False)
sketch11.addGeometry(Part.LineSegment(V(22, 48, 0), V(22, 54.021463, 0)), True)
sketch11.addConstraint(Sketcher.Constraint("Coincident", 0, 2, 1, 1))
sketch11.addConstraint(Sketcher.Constraint("Coincident", 1, 2, 2, 1))
sketch11.addConstraint(Sketcher.Constraint("Coincident", 2, 2, 3, 1))
sketch11.addConstraint(Sketcher.Constraint("Coincident", 3, 2, 0, 1))
sketch11.addConstraint(Sketcher.Constraint("Vertical", 0))
sketch11.addConstraint(Sketcher.Constraint("Horizontal", 1))
sketch11.addConstraint(Sketcher.Constraint("Vertical", 2))
sketch11.addConstraint(Sketcher.Constraint("Vertical", 4))
sketch11.addConstraint(Sketcher.Constraint("Coincident", 4, 1, 0, 2))
sketch11.addConstraint(Sketcher.Constraint("Equal", 0, 4))
sketch11.addConstraint(Sketcher.Constraint("DistanceY", 2, 1, 2, 2, Q("5 mm")))
sketch11.addConstraint(Sketcher.Constraint("Angle", 3, Q("31 deg")))
sketch11.addConstraint(Sketcher.Constraint("DistanceX", 1, 2, 1, 1, Q("1.7 mm")))
sketch11.addConstraint(Sketcher.Constraint("DistanceX", -1, 1, 0, 2, Q("22 mm")))
sketch11.addConstraint(Sketcher.Constraint("DistanceY", -1, 1, 0, 2, Q("48 mm")))
sketch11.setExpression("Constraints[10]", "Params.sketch11_height")
sketch11.setExpression("Constraints[12]", "Params.sketch11_width")
groove9 = body.newObject("PartDesign::Groove", "Groove008")
groove9.Profile = sketch11
groove9.ReferenceAxis = (sketch11, ["Axis0"])
groove9.setExpression("Angle", "Params.groove9_angle")

sketch12 = body.newObject("Sketcher::SketchObject", "Sketch011")
sketch12.AttachmentSupport = (doc.getObject("XY_Plane"), [""])
sketch12.MapMode = "FlatFace"
sketch12.AttachmentOffset = App.Placement(V(0, 0, -5), App.Rotation())
sketch12.addGeometry(Part.LineSegment(V(-54.021463, 22, 0), V(-48, 22, 0)), False)
sketch12.addGeometry(Part.LineSegment(V(-48, 22, 0), V(-48, 20.3, 0)), False)
sketch12.addGeometry(Part.LineSegment(V(-48, 20.3, 0), V(-53, 20.3, 0)), False)
sketch12.addGeometry(Part.LineSegment(V(-53, 20.3, 0), V(-54.021463, 22, 0)), False)
sketch12.addGeometry(Part.LineSegment(V(-48, 22, 0), V(-54.021463, 22, 0)), True)
sketch12.addConstraint(Sketcher.Constraint("Coincident", 0, 2, 1, 1))
sketch12.addConstraint(Sketcher.Constraint("Coincident", 1, 2, 2, 1))
sketch12.addConstraint(Sketcher.Constraint("Coincident", 2, 2, 3, 1))
sketch12.addConstraint(Sketcher.Constraint("Coincident", 3, 2, 0, 1))
sketch12.addConstraint(Sketcher.Constraint("Horizontal", 0))
sketch12.addConstraint(Sketcher.Constraint("Vertical", 1))
sketch12.addConstraint(Sketcher.Constraint("Horizontal", 2))
sketch12.addConstraint(Sketcher.Constraint("Horizontal", 4))
sketch12.addConstraint(Sketcher.Constraint("Coincident", 4, 1, 0, 2))
sketch12.addConstraint(Sketcher.Constraint("Equal", 0, 4))
sketch12.addConstraint(Sketcher.Constraint("DistanceX", 2, 2, 2, 1, Q("5 mm")))
sketch12.addConstraint(Sketcher.Constraint("Angle", 3, Q("121 deg")))
sketch12.addConstraint(Sketcher.Constraint("DistanceY", 1, 2, 1, 1, Q("1.7 mm")))
sketch12.addConstraint(Sketcher.Constraint("DistanceX", 0, 2, -1, 1, Q("48 mm")))
sketch12.addConstraint(Sketcher.Constraint("DistanceY", -1, 1, 0, 2, Q("22 mm")))
sketch12.setExpression("Constraints[10]", "Params.sketch12_width")
sketch12.setExpression("Constraints[12]", "Params.sketch12_height")
groove10 = body.newObject("PartDesign::Groove", "Groove009")
groove10.Profile = sketch12
groove10.ReferenceAxis = (sketch12, ["Axis0"])
groove10.setExpression("Angle", "Params.groove10_angle")

sketch13 = body.newObject("Sketcher::SketchObject", "Sketch012")
sketch13.AttachmentSupport = (doc.getObject("XY_Plane"), [""])
sketch13.MapMode = "FlatFace"
sketch13.AttachmentOffset = App.Placement(V(0, 0, 14), App.Rotation())
sketch13.addGeometry(Part.LineSegment(V(54.021463, 20, 0), V(48, 20, 0)), False)
sketch13.addGeometry(Part.LineSegment(V(48, 20, 0), V(48, 18.3, 0)), False)
sketch13.addGeometry(Part.LineSegment(V(48, 18.3, 0), V(53, 18.3, 0)), False)
sketch13.addGeometry(Part.LineSegment(V(53, 18.3, 0), V(54.021463, 20, 0)), False)
sketch13.addGeometry(Part.LineSegment(V(48, 20, 0), V(54.021463, 20, 0)), True)
sketch13.addConstraint(Sketcher.Constraint("Coincident", 0, 2, 1, 1))
sketch13.addConstraint(Sketcher.Constraint("Coincident", 1, 2, 2, 1))
sketch13.addConstraint(Sketcher.Constraint("Coincident", 2, 2, 3, 1))
sketch13.addConstraint(Sketcher.Constraint("Coincident", 3, 2, 0, 1))
sketch13.addConstraint(Sketcher.Constraint("Horizontal", 0))
sketch13.addConstraint(Sketcher.Constraint("Vertical", 1))
sketch13.addConstraint(Sketcher.Constraint("Horizontal", 2))
sketch13.addConstraint(Sketcher.Constraint("Horizontal", 4))
sketch13.addConstraint(Sketcher.Constraint("Coincident", 4, 1, 0, 2))
sketch13.addConstraint(Sketcher.Constraint("Equal", 0, 4))
sketch13.addConstraint(Sketcher.Constraint("DistanceX", 2, 1, 2, 2, Q("5 mm")))
sketch13.addConstraint(Sketcher.Constraint("Angle", 3, Q("59 deg")))
sketch13.addConstraint(Sketcher.Constraint("DistanceY", 1, 2, 1, 1, Q("1.7 mm")))
sketch13.addConstraint(Sketcher.Constraint("DistanceX", -1, 1, 0, 2, Q("48 mm")))
sketch13.addConstraint(Sketcher.Constraint("DistanceY", -1, 1, 0, 2, Q("20 mm")))
sketch13.setExpression("Constraints[10]", "Params.sketch13_width")
sketch13.setExpression("Constraints[12]", "Params.sketch13_height")
groove11 = body.newObject("PartDesign::Groove", "Groove010")
groove11.Profile = sketch13
groove11.ReferenceAxis = (sketch13, ["Axis0"])
groove11.setExpression("Angle", "Params.groove11_angle")

sketch14 = body.newObject("Sketcher::SketchObject", "Sketch013")
sketch14.AttachmentSupport = (doc.getObject("YZ_Plane"), [""])
sketch14.MapMode = "FlatFace"
sketch14.AttachmentOffset = App.Placement(V(0, 0, -14), App.Rotation())
sketch14.addGeometry(Part.LineSegment(V(20, 54.021463, 0), V(20, 48, 0)), False)
sketch14.addGeometry(Part.LineSegment(V(20, 48, 0), V(18.3, 48, 0)), False)
sketch14.addGeometry(Part.LineSegment(V(18.3, 48, 0), V(18.3, 53, 0)), False)
sketch14.addGeometry(Part.LineSegment(V(18.3, 53, 0), V(20, 54.021463, 0)), False)
sketch14.addGeometry(Part.LineSegment(V(20, 48, 0), V(20, 54.021463, 0)), True)
sketch14.addConstraint(Sketcher.Constraint("Coincident", 0, 2, 1, 1))
sketch14.addConstraint(Sketcher.Constraint("Coincident", 1, 2, 2, 1))
sketch14.addConstraint(Sketcher.Constraint("Coincident", 2, 2, 3, 1))
sketch14.addConstraint(Sketcher.Constraint("Coincident", 3, 2, 0, 1))
sketch14.addConstraint(Sketcher.Constraint("Vertical", 0))
sketch14.addConstraint(Sketcher.Constraint("Horizontal", 1))
sketch14.addConstraint(Sketcher.Constraint("Vertical", 2))
sketch14.addConstraint(Sketcher.Constraint("Vertical", 4))
sketch14.addConstraint(Sketcher.Constraint("Coincident", 4, 1, 0, 2))
sketch14.addConstraint(Sketcher.Constraint("Equal", 0, 4))
sketch14.addConstraint(Sketcher.Constraint("DistanceY", 2, 1, 2, 2, Q("5 mm")))
sketch14.addConstraint(Sketcher.Constraint("Angle", 3, Q("31 deg")))
sketch14.addConstraint(Sketcher.Constraint("DistanceX", 1, 2, 1, 1, Q("1.7 mm")))
sketch14.addConstraint(Sketcher.Constraint("DistanceX", -1, 1, 0, 2, Q("20 mm")))
sketch14.addConstraint(Sketcher.Constraint("DistanceY", -1, 1, 0, 2, Q("48 mm")))
sketch14.setExpression("Constraints[10]", "Params.sketch14_height")
sketch14.setExpression("Constraints[12]", "Params.sketch14_width")
groove12 = body.newObject("PartDesign::Groove", "Groove011")
groove12.Profile = sketch14
groove12.ReferenceAxis = (sketch14, ["Axis0"])
groove12.setExpression("Angle", "Params.groove12_angle")

sketch15 = body.newObject("Sketcher::SketchObject", "Sketch014")
sketch15.AttachmentSupport = (doc.getObject("XY_Plane"), [""])
sketch15.MapMode = "FlatFace"
sketch15.AttachmentOffset = App.Placement(V(0, 0, -14), App.Rotation())
sketch15.addGeometry(Part.LineSegment(V(-54.021463, 20, 0), V(-48, 20, 0)), False)
sketch15.addGeometry(Part.LineSegment(V(-48, 20, 0), V(-48, 18.3, 0)), False)
sketch15.addGeometry(Part.LineSegment(V(-48, 18.3, 0), V(-53, 18.3, 0)), False)
sketch15.addGeometry(Part.LineSegment(V(-53, 18.3, 0), V(-54.021463, 20, 0)), False)
sketch15.addGeometry(Part.LineSegment(V(-48, 20, 0), V(-54.021463, 20, 0)), True)
sketch15.addConstraint(Sketcher.Constraint("Coincident", 0, 2, 1, 1))
sketch15.addConstraint(Sketcher.Constraint("Coincident", 1, 2, 2, 1))
sketch15.addConstraint(Sketcher.Constraint("Coincident", 2, 2, 3, 1))
sketch15.addConstraint(Sketcher.Constraint("Coincident", 3, 2, 0, 1))
sketch15.addConstraint(Sketcher.Constraint("Horizontal", 0))
sketch15.addConstraint(Sketcher.Constraint("Vertical", 1))
sketch15.addConstraint(Sketcher.Constraint("Horizontal", 2))
sketch15.addConstraint(Sketcher.Constraint("Horizontal", 4))
sketch15.addConstraint(Sketcher.Constraint("Coincident", 4, 1, 0, 2))
sketch15.addConstraint(Sketcher.Constraint("Equal", 0, 4))
sketch15.addConstraint(Sketcher.Constraint("DistanceX", 2, 2, 2, 1, Q("5 mm")))
sketch15.addConstraint(Sketcher.Constraint("Angle", 3, Q("121 deg")))
sketch15.addConstraint(Sketcher.Constraint("DistanceY", 1, 2, 1, 1, Q("1.7 mm")))
sketch15.addConstraint(Sketcher.Constraint("DistanceX", 0, 2, -1, 1, Q("48 mm")))
sketch15.addConstraint(Sketcher.Constraint("DistanceY", -1, 1, 0, 2, Q("20 mm")))
sketch15.setExpression("Constraints[10]", "Params.sketch15_width")
sketch15.setExpression("Constraints[12]", "Params.sketch15_height")
groove13 = body.newObject("PartDesign::Groove", "Groove012")
groove13.Profile = sketch15
groove13.ReferenceAxis = (sketch15, ["Axis0"])
groove13.setExpression("Angle", "Params.groove13_angle")

sketch16 = body.newObject("Sketcher::SketchObject", "Sketch015")
sketch16.AttachmentSupport = (doc.getObject("XY_Plane"), [""])
sketch16.MapMode = "FlatFace"
sketch16.AttachmentOffset = App.Placement(V(0, 0, 24), App.Rotation())
sketch16.addGeometry(Part.LineSegment(V(54.021463, 20, 0), V(48, 20, 0)), False)
sketch16.addGeometry(Part.LineSegment(V(48, 20, 0), V(48, 18.3, 0)), False)
sketch16.addGeometry(Part.LineSegment(V(48, 18.3, 0), V(53, 18.3, 0)), False)
sketch16.addGeometry(Part.LineSegment(V(53, 18.3, 0), V(54.021463, 20, 0)), False)
sketch16.addGeometry(Part.LineSegment(V(48, 20, 0), V(54.021463, 20, 0)), True)
sketch16.addConstraint(Sketcher.Constraint("Coincident", 0, 2, 1, 1))
sketch16.addConstraint(Sketcher.Constraint("Coincident", 1, 2, 2, 1))
sketch16.addConstraint(Sketcher.Constraint("Coincident", 2, 2, 3, 1))
sketch16.addConstraint(Sketcher.Constraint("Coincident", 3, 2, 0, 1))
sketch16.addConstraint(Sketcher.Constraint("Horizontal", 0))
sketch16.addConstraint(Sketcher.Constraint("Vertical", 1))
sketch16.addConstraint(Sketcher.Constraint("Horizontal", 2))
sketch16.addConstraint(Sketcher.Constraint("Horizontal", 4))
sketch16.addConstraint(Sketcher.Constraint("Coincident", 4, 1, 0, 2))
sketch16.addConstraint(Sketcher.Constraint("Equal", 0, 4))
sketch16.addConstraint(Sketcher.Constraint("DistanceX", 2, 1, 2, 2, Q("5 mm")))
sketch16.addConstraint(Sketcher.Constraint("Angle", 3, Q("59 deg")))
sketch16.addConstraint(Sketcher.Constraint("DistanceY", 1, 2, 1, 1, Q("1.7 mm")))
sketch16.addConstraint(Sketcher.Constraint("DistanceX", -1, 1, 0, 2, Q("48 mm")))
sketch16.addConstraint(Sketcher.Constraint("DistanceY", -1, 1, 0, 2, Q("20 mm")))
sketch16.setExpression("Constraints[10]", "Params.sketch16_width")
sketch16.setExpression("Constraints[12]", "Params.sketch16_height")
groove14 = body.newObject("PartDesign::Groove", "Groove013")
groove14.Profile = sketch16
groove14.ReferenceAxis = (sketch16, ["Axis0"])
groove14.setExpression("Angle", "Params.groove14_angle")

sketch17 = body.newObject("Sketcher::SketchObject", "Sketch016")
sketch17.AttachmentSupport = (doc.getObject("YZ_Plane"), [""])
sketch17.MapMode = "FlatFace"
sketch17.AttachmentOffset = App.Placement(V(0, 0, -24), App.Rotation())
sketch17.addGeometry(Part.LineSegment(V(20, 54.021463, 0), V(20, 48, 0)), False)
sketch17.addGeometry(Part.LineSegment(V(20, 48, 0), V(18.3, 48, 0)), False)
sketch17.addGeometry(Part.LineSegment(V(18.3, 48, 0), V(18.3, 53, 0)), False)
sketch17.addGeometry(Part.LineSegment(V(18.3, 53, 0), V(20, 54.021463, 0)), False)
sketch17.addGeometry(Part.LineSegment(V(20, 48, 0), V(20, 54.021463, 0)), True)
sketch17.addConstraint(Sketcher.Constraint("Coincident", 0, 2, 1, 1))
sketch17.addConstraint(Sketcher.Constraint("Coincident", 1, 2, 2, 1))
sketch17.addConstraint(Sketcher.Constraint("Coincident", 2, 2, 3, 1))
sketch17.addConstraint(Sketcher.Constraint("Coincident", 3, 2, 0, 1))
sketch17.addConstraint(Sketcher.Constraint("Vertical", 0))
sketch17.addConstraint(Sketcher.Constraint("Horizontal", 1))
sketch17.addConstraint(Sketcher.Constraint("Vertical", 2))
sketch17.addConstraint(Sketcher.Constraint("Vertical", 4))
sketch17.addConstraint(Sketcher.Constraint("Coincident", 4, 1, 0, 2))
sketch17.addConstraint(Sketcher.Constraint("Equal", 0, 4))
sketch17.addConstraint(Sketcher.Constraint("DistanceY", 2, 1, 2, 2, Q("5 mm")))
sketch17.addConstraint(Sketcher.Constraint("Angle", 3, Q("31 deg")))
sketch17.addConstraint(Sketcher.Constraint("DistanceX", 1, 2, 1, 1, Q("1.7 mm")))
sketch17.addConstraint(Sketcher.Constraint("DistanceX", -1, 1, 0, 2, Q("20 mm")))
sketch17.addConstraint(Sketcher.Constraint("DistanceY", -1, 1, 0, 2, Q("48 mm")))
sketch17.setExpression("Constraints[10]", "Params.sketch17_height")
sketch17.setExpression("Constraints[12]", "Params.sketch17_width")
groove15 = body.newObject("PartDesign::Groove", "Groove014")
groove15.Profile = sketch17
groove15.ReferenceAxis = (sketch17, ["Axis0"])
groove15.setExpression("Angle", "Params.groove15_angle")

sketch18 = body.newObject("Sketcher::SketchObject", "Sketch017")
sketch18.AttachmentSupport = (doc.getObject("XY_Plane"), [""])
sketch18.MapMode = "FlatFace"
sketch18.AttachmentOffset = App.Placement(V(0, 0, -24), App.Rotation())
sketch18.addGeometry(Part.LineSegment(V(-54.021463, 20, 0), V(-48, 20, 0)), False)
sketch18.addGeometry(Part.LineSegment(V(-48, 20, 0), V(-48, 18.3, 0)), False)
sketch18.addGeometry(Part.LineSegment(V(-48, 18.3, 0), V(-53, 18.3, 0)), False)
sketch18.addGeometry(Part.LineSegment(V(-53, 18.3, 0), V(-54.021463, 20, 0)), False)
sketch18.addGeometry(Part.LineSegment(V(-48, 20, 0), V(-54.021463, 20, 0)), True)
sketch18.addConstraint(Sketcher.Constraint("Coincident", 0, 2, 1, 1))
sketch18.addConstraint(Sketcher.Constraint("Coincident", 1, 2, 2, 1))
sketch18.addConstraint(Sketcher.Constraint("Coincident", 2, 2, 3, 1))
sketch18.addConstraint(Sketcher.Constraint("Coincident", 3, 2, 0, 1))
sketch18.addConstraint(Sketcher.Constraint("Horizontal", 0))
sketch18.addConstraint(Sketcher.Constraint("Vertical", 1))
sketch18.addConstraint(Sketcher.Constraint("Horizontal", 2))
sketch18.addConstraint(Sketcher.Constraint("Horizontal", 4))
sketch18.addConstraint(Sketcher.Constraint("Coincident", 4, 1, 0, 2))
sketch18.addConstraint(Sketcher.Constraint("Equal", 0, 4))
sketch18.addConstraint(Sketcher.Constraint("DistanceX", 2, 2, 2, 1, Q("5 mm")))
sketch18.addConstraint(Sketcher.Constraint("Angle", 3, Q("121 deg")))
sketch18.addConstraint(Sketcher.Constraint("DistanceY", 1, 2, 1, 1, Q("1.7 mm")))
sketch18.addConstraint(Sketcher.Constraint("DistanceX", 0, 2, -1, 1, Q("48 mm")))
sketch18.addConstraint(Sketcher.Constraint("DistanceY", -1, 1, 0, 2, Q("20 mm")))
sketch18.setExpression("Constraints[10]", "Params.sketch18_width")
sketch18.setExpression("Constraints[12]", "Params.sketch18_height")
groove16 = body.newObject("PartDesign::Groove", "Groove015")
groove16.Profile = sketch18
groove16.ReferenceAxis = (sketch18, ["Axis0"])
groove16.setExpression("Angle", "Params.groove16_angle")

doc.recompute()
